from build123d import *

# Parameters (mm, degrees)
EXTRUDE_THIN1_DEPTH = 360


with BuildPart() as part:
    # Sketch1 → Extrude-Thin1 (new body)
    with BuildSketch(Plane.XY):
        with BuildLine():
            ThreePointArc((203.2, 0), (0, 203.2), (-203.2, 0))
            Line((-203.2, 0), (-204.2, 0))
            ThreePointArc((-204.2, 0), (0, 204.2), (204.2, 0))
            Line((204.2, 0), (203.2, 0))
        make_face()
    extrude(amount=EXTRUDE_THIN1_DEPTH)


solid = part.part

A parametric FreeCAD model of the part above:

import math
import FreeCAD as App
import Part
import Sketcher

doc = App.newDocument("Part")
body = doc.addObject("PartDesign::Body", "Body")

sketch1 = body.newObject("Sketcher::SketchObject", "Sketch")
sketch1.AttachmentSupport = (doc.getObject("XY_Plane"), [""])
sketch1.MapMode = "FlatFace"
sketch1.addGeometry([
    Part.ArcOfCircle(Part.Circle(App.Vector(0, 0, 0), App.Vector(0, 0, 1), 203.2), math.radians(0), math.radians(180)),
    Part.LineSegment(App.Vector(203.2, 0, 0), App.Vector(204.2, 0, 0)),
    Part.ArcOfCircle(Part.Circle(App.Vector(0, 0, 0), App.Vector(0, 0, 1), 204.2), math.radians(0), math.radians(180)),
    Part.LineSegment(App.Vector(-204.2, 0, 0), App.Vector(-203.2, 0, 0)),
], False)
sketch1.addConstraint([
    Sketcher.Constraint("Coincident", 0, 1, 1, 1),
    Sketcher.Constraint("Coincident", 1, 2, 2, 1),
    Sketcher.Constraint("Coincident", 2, 2, 3, 1),
    Sketcher.Constraint("Coincident", 3, 2, 0, 2),
    Sketcher.Constraint("Horizontal", 1),
    Sketcher.Constraint("Horizontal", 3),
    Sketcher.Constraint("Coincident", 0, 3, -1, 1),
    Sketcher.Constraint("Coincident", 2, 3, -1, 1),
    Sketcher.Constraint("PointOnObject", 0, 1, -1),
    Sketcher.Constraint("PointOnObject", 2, 2, -1),
    Sketcher.Constraint("Radius", 0, 203.2),
    Sketcher.Constraint("Radius", 2, 204.2),
])
pad1 = body.newObject("PartDesign::Pad", "Pad")
pad1.Profile = sketch1
pad1.Length = 360

doc.recompute()
